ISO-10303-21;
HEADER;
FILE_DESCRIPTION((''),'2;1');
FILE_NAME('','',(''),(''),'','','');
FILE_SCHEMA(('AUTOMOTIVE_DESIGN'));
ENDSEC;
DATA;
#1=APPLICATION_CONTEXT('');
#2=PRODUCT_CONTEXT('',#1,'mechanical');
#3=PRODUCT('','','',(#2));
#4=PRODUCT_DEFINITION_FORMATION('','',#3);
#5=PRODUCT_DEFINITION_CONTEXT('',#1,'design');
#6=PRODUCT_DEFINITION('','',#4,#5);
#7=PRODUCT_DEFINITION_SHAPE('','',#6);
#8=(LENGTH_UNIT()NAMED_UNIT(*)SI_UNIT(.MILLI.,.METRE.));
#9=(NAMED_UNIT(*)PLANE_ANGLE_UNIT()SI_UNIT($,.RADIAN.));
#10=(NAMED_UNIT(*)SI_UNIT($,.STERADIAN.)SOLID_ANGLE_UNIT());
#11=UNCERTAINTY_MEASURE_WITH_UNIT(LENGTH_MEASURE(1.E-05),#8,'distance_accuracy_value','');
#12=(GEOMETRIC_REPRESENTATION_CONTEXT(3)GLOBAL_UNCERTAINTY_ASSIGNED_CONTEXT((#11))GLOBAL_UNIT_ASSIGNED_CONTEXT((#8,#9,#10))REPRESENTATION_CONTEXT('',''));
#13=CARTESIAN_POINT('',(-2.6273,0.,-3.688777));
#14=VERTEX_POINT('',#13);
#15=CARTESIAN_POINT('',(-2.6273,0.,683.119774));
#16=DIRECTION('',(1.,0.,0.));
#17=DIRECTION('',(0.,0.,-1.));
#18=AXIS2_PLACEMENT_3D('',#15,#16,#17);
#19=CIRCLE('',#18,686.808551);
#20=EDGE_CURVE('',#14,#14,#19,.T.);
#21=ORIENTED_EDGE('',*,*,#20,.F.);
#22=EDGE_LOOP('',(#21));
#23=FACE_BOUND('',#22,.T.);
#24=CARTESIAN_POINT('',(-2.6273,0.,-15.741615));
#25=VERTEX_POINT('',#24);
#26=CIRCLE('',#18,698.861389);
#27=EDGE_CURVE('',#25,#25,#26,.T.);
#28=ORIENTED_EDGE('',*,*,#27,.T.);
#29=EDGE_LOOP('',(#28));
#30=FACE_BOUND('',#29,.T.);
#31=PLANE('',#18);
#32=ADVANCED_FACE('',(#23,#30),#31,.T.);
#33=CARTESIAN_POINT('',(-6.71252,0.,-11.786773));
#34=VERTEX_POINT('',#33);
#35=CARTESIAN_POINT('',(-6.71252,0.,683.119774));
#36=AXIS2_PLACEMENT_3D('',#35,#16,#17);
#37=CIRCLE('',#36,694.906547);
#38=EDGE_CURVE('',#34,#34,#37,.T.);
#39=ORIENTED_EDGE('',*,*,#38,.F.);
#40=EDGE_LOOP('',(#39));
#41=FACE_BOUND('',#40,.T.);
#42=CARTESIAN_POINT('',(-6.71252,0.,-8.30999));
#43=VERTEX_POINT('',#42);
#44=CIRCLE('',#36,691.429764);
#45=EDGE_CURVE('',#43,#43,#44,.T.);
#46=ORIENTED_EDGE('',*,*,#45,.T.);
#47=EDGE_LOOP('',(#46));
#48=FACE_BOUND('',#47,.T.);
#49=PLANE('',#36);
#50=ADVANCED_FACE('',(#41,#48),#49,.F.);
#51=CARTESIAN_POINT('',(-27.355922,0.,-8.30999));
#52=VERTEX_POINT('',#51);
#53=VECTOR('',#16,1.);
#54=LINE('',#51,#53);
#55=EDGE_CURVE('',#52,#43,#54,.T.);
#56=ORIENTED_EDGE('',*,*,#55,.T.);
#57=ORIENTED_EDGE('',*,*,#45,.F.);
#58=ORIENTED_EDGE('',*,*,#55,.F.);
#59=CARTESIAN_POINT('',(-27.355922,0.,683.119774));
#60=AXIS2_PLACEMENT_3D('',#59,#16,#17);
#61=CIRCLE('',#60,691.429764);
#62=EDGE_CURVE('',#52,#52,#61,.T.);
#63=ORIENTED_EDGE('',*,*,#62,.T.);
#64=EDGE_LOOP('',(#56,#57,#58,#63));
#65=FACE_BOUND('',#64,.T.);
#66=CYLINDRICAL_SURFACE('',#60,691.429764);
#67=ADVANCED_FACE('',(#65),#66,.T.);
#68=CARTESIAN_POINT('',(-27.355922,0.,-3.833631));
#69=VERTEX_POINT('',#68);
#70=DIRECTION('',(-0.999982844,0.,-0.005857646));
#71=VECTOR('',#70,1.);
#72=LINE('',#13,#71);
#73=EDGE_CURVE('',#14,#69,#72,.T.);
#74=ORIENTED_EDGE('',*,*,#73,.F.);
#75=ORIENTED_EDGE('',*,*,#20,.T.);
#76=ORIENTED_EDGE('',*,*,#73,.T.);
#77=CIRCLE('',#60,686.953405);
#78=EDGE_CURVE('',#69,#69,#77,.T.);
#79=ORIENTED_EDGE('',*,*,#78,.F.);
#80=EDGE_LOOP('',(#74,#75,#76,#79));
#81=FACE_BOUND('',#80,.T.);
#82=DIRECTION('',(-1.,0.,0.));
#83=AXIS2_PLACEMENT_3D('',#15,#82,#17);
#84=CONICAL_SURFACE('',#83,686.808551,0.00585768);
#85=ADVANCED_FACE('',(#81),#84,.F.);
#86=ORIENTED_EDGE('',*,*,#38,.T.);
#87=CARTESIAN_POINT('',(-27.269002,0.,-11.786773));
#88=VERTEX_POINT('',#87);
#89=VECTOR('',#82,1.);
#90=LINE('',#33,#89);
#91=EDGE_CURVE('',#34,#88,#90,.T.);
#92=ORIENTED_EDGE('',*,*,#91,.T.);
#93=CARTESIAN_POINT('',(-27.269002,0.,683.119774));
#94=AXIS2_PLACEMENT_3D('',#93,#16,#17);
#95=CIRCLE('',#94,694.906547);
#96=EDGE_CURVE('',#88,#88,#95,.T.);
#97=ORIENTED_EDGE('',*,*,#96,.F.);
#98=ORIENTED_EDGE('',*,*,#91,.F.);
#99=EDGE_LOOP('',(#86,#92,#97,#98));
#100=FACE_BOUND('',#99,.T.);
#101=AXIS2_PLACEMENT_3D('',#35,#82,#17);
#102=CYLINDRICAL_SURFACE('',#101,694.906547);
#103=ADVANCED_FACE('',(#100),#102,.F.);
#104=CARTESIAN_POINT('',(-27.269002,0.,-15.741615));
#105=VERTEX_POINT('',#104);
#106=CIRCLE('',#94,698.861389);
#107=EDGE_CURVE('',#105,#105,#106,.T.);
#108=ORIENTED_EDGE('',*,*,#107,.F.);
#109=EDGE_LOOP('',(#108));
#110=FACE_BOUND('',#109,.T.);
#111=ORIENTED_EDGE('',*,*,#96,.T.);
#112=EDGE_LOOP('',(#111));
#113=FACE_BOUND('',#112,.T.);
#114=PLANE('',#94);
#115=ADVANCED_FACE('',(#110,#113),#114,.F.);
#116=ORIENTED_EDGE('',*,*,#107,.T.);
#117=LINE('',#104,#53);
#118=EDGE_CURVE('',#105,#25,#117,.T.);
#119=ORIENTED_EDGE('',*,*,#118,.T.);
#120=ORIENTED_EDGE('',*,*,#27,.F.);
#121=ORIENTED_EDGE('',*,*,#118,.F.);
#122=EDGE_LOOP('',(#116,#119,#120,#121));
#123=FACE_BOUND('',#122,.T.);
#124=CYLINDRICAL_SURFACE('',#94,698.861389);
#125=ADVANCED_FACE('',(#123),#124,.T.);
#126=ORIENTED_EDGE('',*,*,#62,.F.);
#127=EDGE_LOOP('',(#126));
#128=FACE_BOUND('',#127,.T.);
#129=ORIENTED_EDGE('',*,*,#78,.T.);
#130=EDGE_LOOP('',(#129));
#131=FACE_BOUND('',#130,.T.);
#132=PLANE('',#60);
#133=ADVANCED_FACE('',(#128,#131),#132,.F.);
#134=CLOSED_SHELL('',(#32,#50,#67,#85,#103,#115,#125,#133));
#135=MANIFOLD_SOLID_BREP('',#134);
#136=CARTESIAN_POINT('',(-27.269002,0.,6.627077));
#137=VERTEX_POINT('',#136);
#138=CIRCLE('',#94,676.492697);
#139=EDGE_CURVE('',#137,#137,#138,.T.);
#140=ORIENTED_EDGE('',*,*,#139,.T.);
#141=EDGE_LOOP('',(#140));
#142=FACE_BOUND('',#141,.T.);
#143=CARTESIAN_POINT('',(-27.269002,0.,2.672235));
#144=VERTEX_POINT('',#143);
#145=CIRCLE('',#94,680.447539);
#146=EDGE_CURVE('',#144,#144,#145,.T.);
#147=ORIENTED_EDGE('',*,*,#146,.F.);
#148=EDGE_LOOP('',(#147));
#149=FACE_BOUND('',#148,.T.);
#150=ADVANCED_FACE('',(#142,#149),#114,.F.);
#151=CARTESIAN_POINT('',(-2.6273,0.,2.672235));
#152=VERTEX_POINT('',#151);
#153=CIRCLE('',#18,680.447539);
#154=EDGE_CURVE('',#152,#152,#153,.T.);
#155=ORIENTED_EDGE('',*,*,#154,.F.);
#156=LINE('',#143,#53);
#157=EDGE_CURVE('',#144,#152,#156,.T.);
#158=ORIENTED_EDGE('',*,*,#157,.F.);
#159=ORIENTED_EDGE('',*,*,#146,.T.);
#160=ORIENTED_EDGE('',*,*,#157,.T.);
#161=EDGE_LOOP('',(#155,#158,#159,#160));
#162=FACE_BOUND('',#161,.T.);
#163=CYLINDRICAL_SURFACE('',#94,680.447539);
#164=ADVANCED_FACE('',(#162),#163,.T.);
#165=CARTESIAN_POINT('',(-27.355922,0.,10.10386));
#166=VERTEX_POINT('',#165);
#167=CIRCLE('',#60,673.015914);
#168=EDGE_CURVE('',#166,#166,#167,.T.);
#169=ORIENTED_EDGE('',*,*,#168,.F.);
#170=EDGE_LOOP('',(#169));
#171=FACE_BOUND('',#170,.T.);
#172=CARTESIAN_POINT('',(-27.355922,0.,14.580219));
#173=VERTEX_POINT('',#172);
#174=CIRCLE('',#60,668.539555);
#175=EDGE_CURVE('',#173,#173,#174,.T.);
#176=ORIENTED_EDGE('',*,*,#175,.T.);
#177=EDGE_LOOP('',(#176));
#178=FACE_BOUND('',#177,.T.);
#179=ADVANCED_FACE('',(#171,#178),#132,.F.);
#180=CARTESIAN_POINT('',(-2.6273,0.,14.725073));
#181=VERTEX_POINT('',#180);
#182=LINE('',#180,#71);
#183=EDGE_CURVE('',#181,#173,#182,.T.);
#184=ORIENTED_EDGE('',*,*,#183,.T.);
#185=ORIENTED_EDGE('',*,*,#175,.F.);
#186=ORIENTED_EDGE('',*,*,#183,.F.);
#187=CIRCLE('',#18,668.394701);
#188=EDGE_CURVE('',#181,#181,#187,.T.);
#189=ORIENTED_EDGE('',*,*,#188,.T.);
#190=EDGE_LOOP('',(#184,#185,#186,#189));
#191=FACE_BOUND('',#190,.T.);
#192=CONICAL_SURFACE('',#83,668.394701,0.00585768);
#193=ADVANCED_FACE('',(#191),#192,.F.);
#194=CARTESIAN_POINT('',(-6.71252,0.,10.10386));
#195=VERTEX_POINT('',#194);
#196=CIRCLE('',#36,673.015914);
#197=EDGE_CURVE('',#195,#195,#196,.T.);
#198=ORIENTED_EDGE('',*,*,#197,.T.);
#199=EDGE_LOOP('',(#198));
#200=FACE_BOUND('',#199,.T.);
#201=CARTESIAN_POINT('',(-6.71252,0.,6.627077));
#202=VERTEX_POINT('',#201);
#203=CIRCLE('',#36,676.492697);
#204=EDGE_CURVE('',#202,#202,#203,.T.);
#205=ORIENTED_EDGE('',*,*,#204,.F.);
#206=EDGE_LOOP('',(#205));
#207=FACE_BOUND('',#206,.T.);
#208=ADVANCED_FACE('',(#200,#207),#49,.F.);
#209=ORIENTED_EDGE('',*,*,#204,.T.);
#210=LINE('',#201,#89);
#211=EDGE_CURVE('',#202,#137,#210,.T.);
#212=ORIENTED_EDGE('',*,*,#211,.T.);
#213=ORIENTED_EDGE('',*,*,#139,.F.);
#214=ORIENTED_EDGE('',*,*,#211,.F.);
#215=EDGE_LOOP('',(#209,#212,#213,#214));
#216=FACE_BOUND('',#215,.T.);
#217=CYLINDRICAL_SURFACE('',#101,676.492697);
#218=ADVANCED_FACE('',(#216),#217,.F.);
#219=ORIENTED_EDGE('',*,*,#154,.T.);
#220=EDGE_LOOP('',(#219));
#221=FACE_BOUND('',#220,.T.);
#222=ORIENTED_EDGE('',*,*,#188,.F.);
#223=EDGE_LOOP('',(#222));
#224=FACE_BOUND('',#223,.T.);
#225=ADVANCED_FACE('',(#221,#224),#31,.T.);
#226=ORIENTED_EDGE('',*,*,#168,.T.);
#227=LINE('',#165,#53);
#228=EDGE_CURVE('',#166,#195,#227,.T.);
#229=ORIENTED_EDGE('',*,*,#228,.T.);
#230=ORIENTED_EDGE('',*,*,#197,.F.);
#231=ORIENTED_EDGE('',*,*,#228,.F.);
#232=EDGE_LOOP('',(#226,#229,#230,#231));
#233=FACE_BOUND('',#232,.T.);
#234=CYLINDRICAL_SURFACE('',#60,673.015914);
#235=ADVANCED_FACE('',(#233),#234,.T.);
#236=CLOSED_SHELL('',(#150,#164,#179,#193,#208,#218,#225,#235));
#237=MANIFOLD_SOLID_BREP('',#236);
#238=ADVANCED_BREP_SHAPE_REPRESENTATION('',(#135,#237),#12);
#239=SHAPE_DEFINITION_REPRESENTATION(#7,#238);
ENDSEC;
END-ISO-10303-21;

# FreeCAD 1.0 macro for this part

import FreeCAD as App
import Part
import Sketcher
from FreeCAD import Vector
Q = App.Units.Quantity

doc = App.newDocument("Part")
body = doc.addObject("PartDesign::Body", "Body")
body.AllowCompound = True

sketch1 = body.newObject("Sketcher::SketchObject", "Sketch")
sketch1.AttachmentSupport = (doc.getObject("XZ_Plane"), [""])
sketch1.MapMode = "FlatFace"
sketch1.addGeometry([
    Part.LineSegment(Vector(-2.6, -3.7, 0), Vector(-27.4, -3.8, 0)),
    Part.LineSegment(Vector(-27.4, -3.8, 0), Vector(-27.4, -8.3, 0)),
    Part.LineSegment(Vector(-27.4, -8.3, 0), Vector(-6.7, -8.3, 0)),
    Part.LineSegment(Vector(-6.7, -8.3, 0), Vector(-6.7, -11.8, 0)),
    Part.LineSegment(Vector(-6.7, -11.8, 0), Vector(-27.3, -11.8, 0)),
    Part.LineSegment(Vector(-27.3, -11.8, 0), Vector(-27.3, -15.7, 0)),
    Part.LineSegment(Vector(-27.3, -15.7, 0), Vector(-2.6, -15.7, 0)),
    Part.LineSegment(Vector(-2.6, -15.7, 0), Vector(-2.6, -3.7, 0)),
    Part.LineSegment(Vector(-2.6, 14.7, 0), Vector(-27.4, 14.6, 0)),
    Part.LineSegment(Vector(-27.4, 14.6, 0), Vector(-27.4, 10.1, 0)),
    Part.LineSegment(Vector(-27.4, 10.1, 0), Vector(-6.7, 10.1, 0)),
    Part.LineSegment(Vector(-6.7, 10.1, 0), Vector(-6.7, 6.6, 0)),
    Part.LineSegment(Vector(-6.7, 6.6, 0), Vector(-27.3, 6.6, 0)),
    Part.LineSegment(Vector(-27.3, 6.6, 0), Vector(-27.3, 2.7, 0)),
    Part.LineSegment(Vector(-27.3, 2.7, 0), Vector(-2.6, 2.7, 0)),
    Part.LineSegment(Vector(-2.6, 2.7, 0), Vector(-2.6, 14.7, 0)),
], False)
sketch1.addGeometry(Part.LineSegment(Vector(-27.4, 683.1, 0), Vector(-2.6, 683.1, 0)), True)
sketch1.addConstraint([
    Sketcher.Constraint("Coincident", 0, 2, 1, 1),
    Sketcher.Constraint("Coincident", 1, 2, 2, 1),
    Sketcher.Constraint("Coincident", 2, 2, 3, 1),
    Sketcher.Constraint("Coincident", 3, 2, 4, 1),
    Sketcher.Constraint("Coincident", 4, 2, 5, 1),
    Sketcher.Constraint("Coincident", 5, 2, 6, 1),
    Sketcher.Constraint("Coincident", 6, 2, 7, 1),
    Sketcher.Constraint("Coincident", 7, 2, 0, 1),
    Sketcher.Constraint("Coincident", 8, 2, 9, 1),
    Sketcher.Constraint("Coincident", 9, 2, 10, 1),
    Sketcher.Constraint("Coincident", 10, 2, 11, 1),
    Sketcher.Constraint("Coincident", 11, 2, 12, 1),
    Sketcher.Constraint("Coincident", 12, 2, 13, 1),
    Sketcher.Constraint("Coincident", 13, 2, 14, 1),
    Sketcher.Constraint("Coincident", 14, 2, 15, 1),
    Sketcher.Constraint("Coincident", 15, 2, 8, 1),
    Sketcher.Constraint("Vertical", 1),
    Sketcher.Constraint("Horizontal", 2),
    Sketcher.Constraint("Vertical", 3),
    Sketcher.Constraint("Horizontal", 4),
    Sketcher.Constraint("Vertical", 5),
    Sketcher.Constraint("Horizontal", 6),
    Sketcher.Constraint("Vertical", 7),
    Sketcher.Constraint("Vertical", 9),
    Sketcher.Constraint("Horizontal", 10),
    Sketcher.Constraint("Vertical", 11),
    Sketcher.Constraint("Horizontal", 12),
    Sketcher.Constraint("Vertical", 13),
    Sketcher.Constraint("Horizontal", 14),
    Sketcher.Constraint("Vertical", 15),
    Sketcher.Constraint("Horizontal", 16),
    Sketcher.Constraint("Parallel", 0, 8),
    Sketcher.Constraint("Vertical", 1, 2, 8, 2),
    Sketcher.Constraint("Vertical", 3, 2, 10, 2),
    Sketcher.Constraint("Vertical", 5, 2, 12, 2),
    Sketcher.Constraint("Vertical", 7, 2, 14, 2),
    Sketcher.Constraint("Vertical", 9, 2, 16, 1),
    Sketcher.Constraint("Vertical", 15, 2, 16, 2),
    Sketcher.Constraint("Equal", 1, 9),
    Sketcher.Constraint("Equal", 3, 11),
    Sketcher.Constraint("Equal", 5, 13),
    Sketcher.Constraint("DistanceY", 1, 2, 1, 1, Q("4.476359 mm")),
    Sketcher.Constraint("DistanceY", 5, 2, 5, 1, Q("3.954842 mm")),
    Sketcher.Constraint("DistanceX", 6, 2, -1, 1, Q("2.6273 mm")),
    Sketcher.Constraint("DistanceY", 15, 2, 16, 1, Q("668.394701 mm")),
    Sketcher.Constraint("DistanceX", 2, 1, 2, 2, Q("20.643402 mm")),
    Sketcher.Constraint("DistanceX", 4, 2, 4, 1, Q("20.556482 mm")),
    Sketcher.Constraint("DistanceX", 6, 1, 6, 2, Q("24.641702 mm")),
    Sketcher.Constraint("DistanceY", 3, 2, 3, 1, Q("3.476783 mm")),
    Sketcher.Constraint("DistanceY", 7, 1, 7, 2, Q("12.052838 mm")),
    Sketcher.Constraint("DistanceY", 0, 2, -1, 1, Q("3.833631 mm")),
    Sketcher.Constraint("DistanceY", -1, 1, 8, 2, Q("14.580219 mm")),
])
revolution = body.newObject("PartDesign::Revolution", "Revolution")
revolution.Profile = sketch1
revolution.ReferenceAxis = (sketch1, ["Axis0"])
revolution.Angle = 360

doc.recompute()
